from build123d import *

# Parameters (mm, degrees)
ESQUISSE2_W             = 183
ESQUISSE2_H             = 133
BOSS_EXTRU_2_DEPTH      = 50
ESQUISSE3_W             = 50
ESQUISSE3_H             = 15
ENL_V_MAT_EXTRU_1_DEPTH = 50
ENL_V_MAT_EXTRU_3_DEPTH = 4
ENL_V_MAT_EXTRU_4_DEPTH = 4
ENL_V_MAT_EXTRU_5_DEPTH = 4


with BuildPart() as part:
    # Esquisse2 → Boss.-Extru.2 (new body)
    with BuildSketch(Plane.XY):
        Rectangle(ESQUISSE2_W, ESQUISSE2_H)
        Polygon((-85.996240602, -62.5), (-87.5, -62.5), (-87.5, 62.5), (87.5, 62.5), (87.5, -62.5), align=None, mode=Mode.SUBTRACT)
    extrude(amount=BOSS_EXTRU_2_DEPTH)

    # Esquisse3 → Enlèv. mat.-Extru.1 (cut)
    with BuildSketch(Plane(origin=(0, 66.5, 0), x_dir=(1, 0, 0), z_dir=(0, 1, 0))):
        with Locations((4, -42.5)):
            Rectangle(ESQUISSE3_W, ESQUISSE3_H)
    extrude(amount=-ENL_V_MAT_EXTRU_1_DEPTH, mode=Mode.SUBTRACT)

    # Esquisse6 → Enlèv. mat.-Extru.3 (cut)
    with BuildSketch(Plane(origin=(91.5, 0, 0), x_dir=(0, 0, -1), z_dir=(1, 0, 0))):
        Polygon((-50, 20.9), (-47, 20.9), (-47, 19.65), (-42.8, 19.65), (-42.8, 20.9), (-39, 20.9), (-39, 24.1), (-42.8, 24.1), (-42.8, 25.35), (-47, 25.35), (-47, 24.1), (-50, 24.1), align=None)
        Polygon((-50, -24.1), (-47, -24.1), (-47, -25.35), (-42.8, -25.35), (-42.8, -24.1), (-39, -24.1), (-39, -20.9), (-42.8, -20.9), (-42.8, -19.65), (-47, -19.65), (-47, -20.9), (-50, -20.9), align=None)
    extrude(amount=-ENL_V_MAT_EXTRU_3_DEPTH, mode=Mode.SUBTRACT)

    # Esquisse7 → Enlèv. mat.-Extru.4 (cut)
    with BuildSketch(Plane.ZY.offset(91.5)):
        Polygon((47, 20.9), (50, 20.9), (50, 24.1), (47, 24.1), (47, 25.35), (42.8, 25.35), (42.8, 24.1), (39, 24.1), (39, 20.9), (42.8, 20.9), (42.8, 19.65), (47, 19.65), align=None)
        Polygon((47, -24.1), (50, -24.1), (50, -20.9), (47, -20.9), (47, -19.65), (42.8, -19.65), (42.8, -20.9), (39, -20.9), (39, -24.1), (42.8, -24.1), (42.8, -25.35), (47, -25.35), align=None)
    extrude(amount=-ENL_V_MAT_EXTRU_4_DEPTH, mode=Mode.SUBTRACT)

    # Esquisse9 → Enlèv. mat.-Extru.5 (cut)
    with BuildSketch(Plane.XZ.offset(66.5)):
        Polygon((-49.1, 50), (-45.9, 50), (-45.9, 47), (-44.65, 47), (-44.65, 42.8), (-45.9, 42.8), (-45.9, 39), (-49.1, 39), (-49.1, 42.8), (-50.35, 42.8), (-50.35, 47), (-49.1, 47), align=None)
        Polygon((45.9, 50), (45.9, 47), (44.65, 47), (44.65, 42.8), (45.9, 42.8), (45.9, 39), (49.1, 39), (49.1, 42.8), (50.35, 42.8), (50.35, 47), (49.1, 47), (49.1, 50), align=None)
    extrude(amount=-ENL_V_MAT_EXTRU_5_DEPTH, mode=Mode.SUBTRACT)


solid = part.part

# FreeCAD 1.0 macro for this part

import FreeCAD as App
import Part
import Sketcher
from FreeCAD import Vector

doc = App.newDocument("Part")
body = doc.addObject("PartDesign::Body", "Body")

sketch1 = body.newObject("Sketcher::SketchObject", "Sketch")
sketch1.AttachmentSupport = (doc.getObject("XY_Plane"), [""])
sketch1.MapMode = "FlatFace"
sketch1.addGeometry([
    Part.LineSegment(Vector(-92, 66, 0), Vector(-92, -66, 0)),
    Part.LineSegment(Vector(-92, -66, 0), Vector(92, -66, 0)),
    Part.LineSegment(Vector(92, -66, 0), Vector(92, 66, 0)),
    Part.LineSegment(Vector(92, 66, 0), Vector(-92, 66, 0)),
    Part.LineSegment(Vector(88, -62, 0), Vector(-88, -62, 0)),
    Part.LineSegment(Vector(-88, -62, 0), Vector(-88, 62, 0)),
    Part.LineSegment(Vector(-88, 62, 0), Vector(88, 62, 0)),
    Part.LineSegment(Vector(88, 62, 0), Vector(88, -62, 0)),
], False)
sketch1.addConstraint([
    Sketcher.Constraint("Coincident", 0, 2, 1, 1),
    Sketcher.Constraint("Coincident", 1, 2, 2, 1),
    Sketcher.Constraint("Coincident", 2, 2, 3, 1),
    Sketcher.Constraint("Coincident", 3, 2, 0, 1),
    Sketcher.Constraint("Coincident", 4, 2, 5, 1),
    Sketcher.Constraint("Coincident", 5, 2, 6, 1),
    Sketcher.Constraint("Coincident", 6, 2, 7, 1),
    Sketcher.Constraint("Coincident", 7, 2, 4, 1),
    Sketcher.Constraint("Vertical", 0),
    Sketcher.Constraint("Horizontal", 1),
    Sketcher.Constraint("Vertical", 2),
    Sketcher.Constraint("Horizontal", 3),
    Sketcher.Constraint("Horizontal", 4),
    Sketcher.Constraint("Vertical", 5),
    Sketcher.Constraint("Horizontal", 6),
    Sketcher.Constraint("Vertical", 7),
    Sketcher.Constraint("Symmetric", 0, 2, 2, 2, -1, 1),
    Sketcher.Constraint("Symmetric", 4, 2, 6, 2, -1, 1),
    Sketcher.Constraint("DistanceX", 1, 1, 1, 2, 183.0),
    Sketcher.Constraint("DistanceX", 4, 2, 4, 1, 175.0),
    Sketcher.Constraint("DistanceY", 0, 2, 0, 1, 133.0),
    Sketcher.Constraint("DistanceY", 5, 1, 5, 2, 125.0),
])
pad1 = body.newObject("PartDesign::Pad", "Pad")
pad1.Profile = sketch1
pad1.Length = 50

sketch2 = body.newObject("Sketcher::SketchObject", "Sketch001")
sketch2.AttachmentSupport = (doc.getObject("XZ_Plane"), [""])
sketch2.MapMode = "FlatFace"
sketch2.AttachmentOffset = App.Placement(Vector(0, 0, -66.5), App.Rotation())
sketch2.addGeometry([
    Part.LineSegment(Vector(-21, 35, 0), Vector(-21, 50, 0)),
    Part.LineSegment(Vector(-21, 50, 0), Vector(29, 50, 0)),
    Part.LineSegment(Vector(29, 50, 0), Vector(29, 35, 0)),
    Part.LineSegment(Vector(29, 35, 0), Vector(-21, 35, 0)),
], False)
sketch2.addConstraint([
    Sketcher.Constraint("Coincident", 0, 2, 1, 1),
    Sketcher.Constraint("Coincident", 1, 2, 2, 1),
    Sketcher.Constraint("Coincident", 2, 2, 3, 1),
    Sketcher.Constraint("Coincident", 3, 2, 0, 1),
    Sketcher.Constraint("Vertical", 0),
    Sketcher.Constraint("Horizontal", 1),
    Sketcher.Constraint("Vertical", 2),
    Sketcher.Constraint("Horizontal", 3),
    Sketcher.Constraint("DistanceX", 1, 1, 1, 2, 50.0),
    Sketcher.Constraint("DistanceY", 0, 1, 0, 2, 15.0),
    Sketcher.Constraint("DistanceX", 0, 2, -1, 1, 21.0),
    Sketcher.Constraint("DistanceY", -1, 1, 0, 2, 50.0),
])
pocket1 = body.newObject("PartDesign::Pocket", "Pocket")
pocket1.Profile = sketch2
pocket1.Length = 50
pocket1.Reversed = True

sketch3 = body.newObject("Sketcher::SketchObject", "Sketch002")
sketch3.AttachmentSupport = (doc.getObject("YZ_Plane"), [""])
sketch3.MapMode = "FlatFace"
sketch3.AttachmentOffset = App.Placement(Vector(0, 0, 91.5), App.Rotation())
sketch3.addGeometry([
    Part.LineSegment(Vector(20.9, 50, 0), Vector(20.9, 47, 0)),
    Part.LineSegment(Vector(20.9, 47, 0), Vector(19.6, 47, 0)),
    Part.LineSegment(Vector(19.6, 47, 0), Vector(19.6, 42.8, 0)),
    Part.LineSegment(Vector(19.6, 42.8, 0), Vector(20.9, 42.8, 0)),
    Part.LineSegment(Vector(20.9, 42.8, 0), Vector(20.9, 39, 0)),
    Part.LineSegment(Vector(20.9, 39, 0), Vector(24.1, 39, 0)),
    Part.LineSegment(Vector(24.1, 39, 0), Vector(24.1, 42.8, 0)),
    Part.LineSegment(Vector(24.1, 42.8, 0), Vector(25.4, 42.8, 0)),
    Part.LineSegment(Vector(25.4, 42.8, 0), Vector(25.4, 47, 0)),
    Part.LineSegment(Vector(25.4, 47, 0), Vector(24.1, 47, 0)),
    Part.LineSegment(Vector(24.1, 47, 0), Vector(24.1, 50, 0)),
    Part.LineSegment(Vector(24.1, 50, 0), Vector(20.9, 50, 0)),
    Part.LineSegment(Vector(-24.1, 50, 0), Vector(-24.1, 47, 0)),
    Part.LineSegment(Vector(-24.1, 47, 0), Vector(-25.4, 47, 0)),
    Part.LineSegment(Vector(-25.4, 47, 0), Vector(-25.4, 42.8, 0)),
    Part.LineSegment(Vector(-25.4, 42.8, 0), Vector(-24.1, 42.8, 0)),
    Part.LineSegment(Vector(-24.1, 42.8, 0), Vector(-24.1, 39, 0)),
    Part.LineSegment(Vector(-24.1, 39, 0), Vector(-20.9, 39, 0)),
    Part.LineSegment(Vector(-20.9, 39, 0), Vector(-20.9, 42.8, 0)),
    Part.LineSegment(Vector(-20.9, 42.8, 0), Vector(-19.6, 42.8, 0)),
    Part.LineSegment(Vector(-19.6, 42.8, 0), Vector(-19.6, 47, 0)),
    Part.LineSegment(Vector(-19.6, 47, 0), Vector(-20.9, 47, 0)),
    Part.LineSegment(Vector(-20.9, 47, 0), Vector(-20.9, 50, 0)),
    Part.LineSegment(Vector(-20.9, 50, 0), Vector(-24.1, 50, 0)),
], False)
sketch3.addConstraint([
    Sketcher.Constraint("Coincident", 0, 2, 1, 1),
    Sketcher.Constraint("Coincident", 1, 2, 2, 1),
    Sketcher.Constraint("Coincident", 2, 2, 3, 1),
    Sketcher.Constraint("Coincident", 3, 2, 4, 1),
    Sketcher.Constraint("Coincident", 4, 2, 5, 1),
    Sketcher.Constraint("Coincident", 5, 2, 6, 1),
    Sketcher.Constraint("Coincident", 6, 2, 7, 1),
    Sketcher.Constraint("Coincident", 7, 2, 8, 1),
    Sketcher.Constraint("Coincident", 8, 2, 9, 1),
    Sketcher.Constraint("Coincident", 9, 2, 10, 1),
    Sketcher.Constraint("Coincident", 10, 2, 11, 1),
    Sketcher.Constraint("Coincident", 11, 2, 0, 1),
    Sketcher.Constraint("Coincident", 12, 2, 13, 1),
    Sketcher.Constraint("Coincident", 13, 2, 14, 1),
    Sketcher.Constraint("Coincident", 14, 2, 15, 1),
    Sketcher.Constraint("Coincident", 15, 2, 16, 1),
    Sketcher.Constraint("Coincident", 16, 2, 17, 1),
    Sketcher.Constraint("Coincident", 17, 2, 18, 1),
    Sketcher.Constraint("Coincident", 18, 2, 19, 1),
    Sketcher.Constraint("Coincident", 19, 2, 20, 1),
    Sketcher.Constraint("Coincident", 20, 2, 21, 1),
    Sketcher.Constraint("Coincident", 21, 2, 22, 1),
    Sketcher.Constraint("Coincident", 22, 2, 23, 1),
    Sketcher.Constraint("Coincident", 23, 2, 12, 1),
    Sketcher.Constraint("Vertical", 0),
    Sketcher.Constraint("Horizontal", 1),
    Sketcher.Constraint("Vertical", 2),
    Sketcher.Constraint("Horizontal", 3),
    Sketcher.Constraint("Vertical", 4),
    Sketcher.Constraint("Horizontal", 5),
    Sketcher.Constraint("Vertical", 6),
    Sketcher.Constraint("Horizontal", 7),
    Sketcher.Constraint("Vertical", 8),
    Sketcher.Constraint("Horizontal", 9),
    Sketcher.Constraint("Vertical", 10),
    Sketcher.Constraint("Horizontal", 11),
    Sketcher.Constraint("Vertical", 12),
    Sketcher.Constraint("Horizontal", 13),
    Sketcher.Constraint("Vertical", 14),
    Sketcher.Constraint("Horizontal", 15),
    Sketcher.Constraint("Vertical", 16),
    Sketcher.Constraint("Horizontal", 17),
    Sketcher.Constraint("Vertical", 18),
    Sketcher.Constraint("Horizontal", 19),
    Sketcher.Constraint("Vertical", 20),
    Sketcher.Constraint("Horizontal", 21),
    Sketcher.Constraint("Vertical", 22),
    Sketcher.Constraint("Horizontal", 23),
    Sketcher.Constraint("Symmetric", 9, 2, 12, 2, -2),
    Sketcher.Constraint("Symmetric", 7, 2, 14, 2, -2),
    Sketcher.Constraint("Symmetric", 5, 2, 16, 2, -2),
    Sketcher.Constraint("Symmetric", 3, 2, 18, 2, -2),
    Sketcher.Constraint("Symmetric", 1, 2, 20, 2, -2),
    Sketcher.Constraint("Symmetric", 11, 2, 22, 2, -2),
    Sketcher.Constraint("Horizontal", 3, 2, 6, 2),
    Sketcher.Constraint("Horizontal", 1, 2, 8, 2),
    Sketcher.Constraint("Vertical", 0, 2, 3, 2),
    Sketcher.Constraint("Vertical", 6, 2, 9, 2),
    Sketcher.Constraint("Equal", 3, 7),
    Sketcher.Constraint("DistanceY", 0, 2, 0, 1, 3.0),
    Sketcher.Constraint("DistanceX", 5, 1, 5, 2, 3.2),
    Sketcher.Constraint("DistanceY", 2, 2, 2, 1, 4.2),
    Sketcher.Constraint("DistanceY", 4, 2, 4, 1, 3.8),
    Sketcher.Constraint("DistanceY", -1, 1, 0, 2, 47.0),
    Sketcher.Constraint("DistanceX", 12, 2, 0, 2, 45.0),
    Sketcher.Constraint("DistanceX", 1, 2, 1, 1, 1.25),
])
pocket2 = body.newObject("PartDesign::Pocket", "Pocket001")
pocket2.Profile = sketch3
pocket2.Length = 4

sketch4 = body.newObject("Sketcher::SketchObject", "Sketch003")
sketch4.AttachmentSupport = (doc.getObject("YZ_Plane"), [""])
sketch4.MapMode = "FlatFace"
sketch4.AttachmentOffset = App.Placement(Vector(0, 0, -91.5), App.Rotation())
sketch4.addGeometry([
    Part.LineSegment(Vector(20.9, 47, 0), Vector(20.9, 50, 0)),
    Part.LineSegment(Vector(20.9, 50, 0), Vector(24.1, 50, 0)),
    Part.LineSegment(Vector(24.1, 50, 0), Vector(24.1, 47, 0)),
    Part.LineSegment(Vector(24.1, 47, 0), Vector(25.4, 47, 0)),
    Part.LineSegment(Vector(25.4, 47, 0), Vector(25.4, 42.8, 0)),
    Part.LineSegment(Vector(25.4, 42.8, 0), Vector(24.1, 42.8, 0)),
    Part.LineSegment(Vector(24.1, 42.8, 0), Vector(24.1, 39, 0)),
    Part.LineSegment(Vector(24.1, 39, 0), Vector(20.9, 39, 0)),
    Part.LineSegment(Vector(20.9, 39, 0), Vector(20.9, 42.8, 0)),
    Part.LineSegment(Vector(20.9, 42.8, 0), Vector(19.6, 42.8, 0)),
    Part.LineSegment(Vector(19.6, 42.8, 0), Vector(19.6, 47, 0)),
    Part.LineSegment(Vector(19.6, 47, 0), Vector(20.9, 47, 0)),
    Part.LineSegment(Vector(-24.1, 47, 0), Vector(-24.1, 50, 0)),
    Part.LineSegment(Vector(-24.1, 50, 0), Vector(-20.9, 50, 0)),
    Part.LineSegment(Vector(-20.9, 50, 0), Vector(-20.9, 47, 0)),
    Part.LineSegment(Vector(-20.9, 47, 0), Vector(-19.6, 47, 0)),
    Part.LineSegment(Vector(-19.6, 47, 0), Vector(-19.6, 42.8, 0)),
    Part.LineSegment(Vector(-19.6, 42.8, 0), Vector(-20.9, 42.8, 0)),
    Part.LineSegment(Vector(-20.9, 42.8, 0), Vector(-20.9, 39, 0)),
    Part.LineSegment(Vector(-20.9, 39, 0), Vector(-24.1, 39, 0)),
    Part.LineSegment(Vector(-24.1, 39, 0), Vector(-24.1, 42.8, 0)),
    Part.LineSegment(Vector(-24.1, 42.8, 0), Vector(-25.4, 42.8, 0)),
    Part.LineSegment(Vector(-25.4, 42.8, 0), Vector(-25.4, 47, 0)),
    Part.LineSegment(Vector(-25.4, 47, 0), Vector(-24.1, 47, 0)),
], False)
sketch4.addConstraint([
    Sketcher.Constraint("Coincident", 0, 2, 1, 1),
    Sketcher.Constraint("Coincident", 1, 2, 2, 1),
    Sketcher.Constraint("Coincident", 2, 2, 3, 1),
    Sketcher.Constraint("Coincident", 3, 2, 4, 1),
    Sketcher.Constraint("Coincident", 4, 2, 5, 1),
    Sketcher.Constraint("Coincident", 5, 2, 6, 1),
    Sketcher.Constraint("Coincident", 6, 2, 7, 1),
    Sketcher.Constraint("Coincident", 7, 2, 8, 1),
    Sketcher.Constraint("Coincident", 8, 2, 9, 1),
    Sketcher.Constraint("Coincident", 9, 2, 10, 1),
    Sketcher.Constraint("Coincident", 10, 2, 11, 1),
    Sketcher.Constraint("Coincident", 11, 2, 0, 1),
    Sketcher.Constraint("Coincident", 12, 2, 13, 1),
    Sketcher.Constraint("Coincident", 13, 2, 14, 1),
    Sketcher.Constraint("Coincident", 14, 2, 15, 1),
    Sketcher.Constraint("Coincident", 15, 2, 16, 1),
    Sketcher.Constraint("Coincident", 16, 2, 17, 1),
    Sketcher.Constraint("Coincident", 17, 2, 18, 1),
    Sketcher.Constraint("Coincident", 18, 2, 19, 1),
    Sketcher.Constraint("Coincident", 19, 2, 20, 1),
    Sketcher.Constraint("Coincident", 20, 2, 21, 1),
    Sketcher.Constraint("Coincident", 21, 2, 22, 1),
    Sketcher.Constraint("Coincident", 22, 2, 23, 1),
    Sketcher.Constraint("Coincident", 23, 2, 12, 1),
    Sketcher.Constraint("Vertical", 0),
    Sketcher.Constraint("Horizontal", 1),
    Sketcher.Constraint("Vertical", 2),
    Sketcher.Constraint("Horizontal", 3),
    Sketcher.Constraint("Vertical", 4),
    Sketcher.Constraint("Horizontal", 5),
    Sketcher.Constraint("Vertical", 6),
    Sketcher.Constraint("Horizontal", 7),
    Sketcher.Constraint("Vertical", 8),
    Sketcher.Constraint("Horizontal", 9),
    Sketcher.Constraint("Vertical", 10),
    Sketcher.Constraint("Horizontal", 11),
    Sketcher.Constraint("Vertical", 12),
    Sketcher.Constraint("Horizontal", 13),
    Sketcher.Constraint("Vertical", 14),
    Sketcher.Constraint("Horizontal", 15),
    Sketcher.Constraint("Vertical", 16),
    Sketcher.Constraint("Horizontal", 17),
    Sketcher.Constraint("Vertical", 18),
    Sketcher.Constraint("Horizontal", 19),
    Sketcher.Constraint("Vertical", 20),
    Sketcher.Constraint("Horizontal", 21),
    Sketcher.Constraint("Vertical", 22),
    Sketcher.Constraint("Horizontal", 23),
    Sketcher.Constraint("Symmetric", 1, 2, 12, 2, -2),
    Sketcher.Constraint("Symmetric", 11, 2, 14, 2, -2),
    Sketcher.Constraint("Symmetric", 9, 2, 16, 2, -2),
    Sketcher.Constraint("Symmetric", 7, 2, 18, 2, -2),
    Sketcher.Constraint("Symmetric", 5, 2, 20, 2, -2),
    Sketcher.Constraint("Symmetric", 3, 2, 22, 2, -2),
    Sketcher.Constraint("Horizontal", 5, 2, 8, 2),
    Sketcher.Constraint("Horizontal", 3, 2, 10, 2),
    Sketcher.Constraint("Vertical", 2, 2, 5, 2),
    Sketcher.Constraint("Vertical", 0, 2, 7, 2),
    Sketcher.Constraint("Equal", 5, 9),
    Sketcher.Constraint("DistanceY", 0, 1, 0, 2, 3.0),
    Sketcher.Constraint("DistanceX", 1, 1, 1, 2, 3.2),
    Sketcher.Constraint("DistanceY", 4, 2, 4, 1, 4.2),
    Sketcher.Constraint("DistanceY", 6, 2, 6, 1, 3.8),
    Sketcher.Constraint("DistanceY", -1, 1, 0, 2, 50.0),
    Sketcher.Constraint("DistanceX", 12, 2, 0, 2, 45.0),
    Sketcher.Constraint("DistanceX", 3, 1, 3, 2, 1.25),
])
pocket3 = body.newObject("PartDesign::Pocket", "Pocket002")
pocket3.Profile = sketch4
pocket3.Length = 4
pocket3.Reversed = True

sketch5 = body.newObject("Sketcher::SketchObject", "Sketch004")
sketch5.AttachmentSupport = (doc.getObject("XZ_Plane"), [""])
sketch5.MapMode = "FlatFace"
sketch5.AttachmentOffset = App.Placement(Vector(0, 0, 66.5), App.Rotation())
sketch5.addGeometry([
    Part.LineSegment(Vector(-45.9, 50, 0), Vector(-49.1, 50, 0)),
    Part.LineSegment(Vector(-49.1, 50, 0), Vector(-49.1, 47, 0)),
    Part.LineSegment(Vector(-49.1, 47, 0), Vector(-50.4, 47, 0)),
    Part.LineSegment(Vector(-50.4, 47, 0), Vector(-50.4, 42.8, 0)),
    Part.LineSegment(Vector(-50.4, 42.8, 0), Vector(-49.1, 42.8, 0)),
    Part.LineSegment(Vector(-49.1, 42.8, 0), Vector(-49.1, 39, 0)),
    Part.LineSegment(Vector(-49.1, 39, 0), Vector(-45.9, 39, 0)),
    Part.LineSegment(Vector(-45.9, 39, 0), Vector(-45.9, 42.8, 0)),
    Part.LineSegment(Vector(-45.9, 42.8, 0), Vector(-44.6, 42.8, 0)),
    Part.LineSegment(Vector(-44.6, 42.8, 0), Vector(-44.6, 47, 0)),
    Part.LineSegment(Vector(-44.6, 47, 0), Vector(-45.9, 47, 0)),
    Part.LineSegment(Vector(-45.9, 47, 0), Vector(-45.9, 50, 0)),
    Part.LineSegment(Vector(45.9, 50, 0), Vector(45.9, 47, 0)),
    Part.LineSegment(Vector(45.9, 47, 0), Vector(44.6, 47, 0)),
    Part.LineSegment(Vector(44.6, 47, 0), Vector(44.6, 42.8, 0)),
    Part.LineSegment(Vector(44.6, 42.8, 0), Vector(45.9, 42.8, 0)),
    Part.LineSegment(Vector(45.9, 42.8, 0), Vector(45.9, 39, 0)),
    Part.LineSegment(Vector(45.9, 39, 0), Vector(49.1, 39, 0)),
    Part.LineSegment(Vector(49.1, 39, 0), Vector(49.1, 42.8, 0)),
    Part.LineSegment(Vector(49.1, 42.8, 0), Vector(50.4, 42.8, 0)),
    Part.LineSegment(Vector(50.4, 42.8, 0), Vector(50.4, 47, 0)),
    Part.LineSegment(Vector(50.4, 47, 0), Vector(49.1, 47, 0)),
    Part.LineSegment(Vector(49.1, 47, 0), Vector(49.1, 50, 0)),
    Part.LineSegment(Vector(49.1, 50, 0), Vector(45.9, 50, 0)),
], False)
sketch5.addConstraint([
    Sketcher.Constraint("Coincident", 0, 2, 1, 1),
    Sketcher.Constraint("Coincident", 1, 2, 2, 1),
    Sketcher.Constraint("Coincident", 2, 2, 3, 1),
    Sketcher.Constraint("Coincident", 3, 2, 4, 1),
    Sketcher.Constraint("Coincident", 4, 2, 5, 1),
    Sketcher.Constraint("Coincident", 5, 2, 6, 1),
    Sketcher.Constraint("Coincident", 6, 2, 7, 1),
    Sketcher.Constraint("Coincident", 7, 2, 8, 1),
    Sketcher.Constraint("Coincident", 8, 2, 9, 1),
    Sketcher.Constraint("Coincident", 9, 2, 10, 1),
    Sketcher.Constraint("Coincident", 10, 2, 11, 1),
    Sketcher.Constraint("Coincident", 11, 2, 0, 1),
    Sketcher.Constraint("Coincident", 12, 2, 13, 1),
    Sketcher.Constraint("Coincident", 13, 2, 14, 1),
    Sketcher.Constraint("Coincident", 14, 2, 15, 1),
    Sketcher.Constraint("Coincident", 15, 2, 16, 1),
    Sketcher.Constraint("Coincident", 16, 2, 17, 1),
    Sketcher.Constraint("Coincident", 17, 2, 18, 1),
    Sketcher.Constraint("Coincident", 18, 2, 19, 1),
    Sketcher.Constraint("Coincident", 19, 2, 20, 1),
    Sketcher.Constraint("Coincident", 20, 2, 21, 1),
    Sketcher.Constraint("Coincident", 21, 2, 22, 1),
    Sketcher.Constraint("Coincident", 22, 2, 23, 1),
    Sketcher.Constraint("Coincident", 23, 2, 12, 1),
    Sketcher.Constraint("Horizontal", 0),
    Sketcher.Constraint("Vertical", 1),
    Sketcher.Constraint("Horizontal", 2),
    Sketcher.Constraint("Vertical", 3),
    Sketcher.Constraint("Horizontal", 4),
    Sketcher.Constraint("Vertical", 5),
    Sketcher.Constraint("Horizontal", 6),
    Sketcher.Constraint("Vertical", 7),
    Sketcher.Constraint("Horizontal", 8),
    Sketcher.Constraint("Vertical", 9),
    Sketcher.Constraint("Horizontal", 10),
    Sketcher.Constraint("Vertical", 11),
    Sketcher.Constraint("Vertical", 12),
    Sketcher.Constraint("Horizontal", 13),
    Sketcher.Constraint("Vertical", 14),
    Sketcher.Constraint("Horizontal", 15),
    Sketcher.Constraint("Vertical", 16),
    Sketcher.Constraint("Horizontal", 17),
    Sketcher.Constraint("Vertical", 18),
    Sketcher.Constraint("Horizontal", 19),
    Sketcher.Constraint("Vertical", 20),
    Sketcher.Constraint("Horizontal", 21),
    Sketcher.Constraint("Vertical", 22),
    Sketcher.Constraint("Horizontal", 23),
    Sketcher.Constraint("Symmetric", 10, 2, 12, 2, -2),
    Sketcher.Constraint("Symmetric", 8, 2, 14, 2, -2),
    Sketcher.Constraint("Symmetric", 6, 2, 16, 2, -2),
    Sketcher.Constraint("Symmetric", 4, 2, 18, 2, -2),
    Sketcher.Constraint("Symmetric", 2, 2, 20, 2, -2),
    Sketcher.Constraint("Symmetric", 0, 2, 22, 2, -2),
    Sketcher.Constraint("Horizontal", 4, 2, 7, 2),
    Sketcher.Constraint("Horizontal", 2, 2, 9, 2),
    Sketcher.Constraint("Vertical", 1, 2, 4, 2),
    Sketcher.Constraint("Vertical", 7, 2, 10, 2),
    Sketcher.Constraint("Equal", 4, 8),
    Sketcher.Constraint("DistanceY", 1, 2, 1, 1, 3.0),
    Sketcher.Constraint("DistanceX", 0, 2, 0, 1, 3.2),
    Sketcher.Constraint("DistanceY", 3, 2, 3, 1, 4.2),
    Sketcher.Constraint("DistanceY", 5, 2, 5, 1, 3.8),
    Sketcher.Constraint("DistanceY", -1, 1, 0, 2, 50.0),
    Sketcher.Constraint("DistanceX", 2, 2, 2, 1, 1.25),
    Sketcher.Constraint("DistanceX", 0, 2, -1, 1, 49.1),
])
pocket4 = body.newObject("PartDesign::Pocket", "Pocket003")
pocket4.Profile = sketch5
pocket4.Length = 4

doc.recompute()
